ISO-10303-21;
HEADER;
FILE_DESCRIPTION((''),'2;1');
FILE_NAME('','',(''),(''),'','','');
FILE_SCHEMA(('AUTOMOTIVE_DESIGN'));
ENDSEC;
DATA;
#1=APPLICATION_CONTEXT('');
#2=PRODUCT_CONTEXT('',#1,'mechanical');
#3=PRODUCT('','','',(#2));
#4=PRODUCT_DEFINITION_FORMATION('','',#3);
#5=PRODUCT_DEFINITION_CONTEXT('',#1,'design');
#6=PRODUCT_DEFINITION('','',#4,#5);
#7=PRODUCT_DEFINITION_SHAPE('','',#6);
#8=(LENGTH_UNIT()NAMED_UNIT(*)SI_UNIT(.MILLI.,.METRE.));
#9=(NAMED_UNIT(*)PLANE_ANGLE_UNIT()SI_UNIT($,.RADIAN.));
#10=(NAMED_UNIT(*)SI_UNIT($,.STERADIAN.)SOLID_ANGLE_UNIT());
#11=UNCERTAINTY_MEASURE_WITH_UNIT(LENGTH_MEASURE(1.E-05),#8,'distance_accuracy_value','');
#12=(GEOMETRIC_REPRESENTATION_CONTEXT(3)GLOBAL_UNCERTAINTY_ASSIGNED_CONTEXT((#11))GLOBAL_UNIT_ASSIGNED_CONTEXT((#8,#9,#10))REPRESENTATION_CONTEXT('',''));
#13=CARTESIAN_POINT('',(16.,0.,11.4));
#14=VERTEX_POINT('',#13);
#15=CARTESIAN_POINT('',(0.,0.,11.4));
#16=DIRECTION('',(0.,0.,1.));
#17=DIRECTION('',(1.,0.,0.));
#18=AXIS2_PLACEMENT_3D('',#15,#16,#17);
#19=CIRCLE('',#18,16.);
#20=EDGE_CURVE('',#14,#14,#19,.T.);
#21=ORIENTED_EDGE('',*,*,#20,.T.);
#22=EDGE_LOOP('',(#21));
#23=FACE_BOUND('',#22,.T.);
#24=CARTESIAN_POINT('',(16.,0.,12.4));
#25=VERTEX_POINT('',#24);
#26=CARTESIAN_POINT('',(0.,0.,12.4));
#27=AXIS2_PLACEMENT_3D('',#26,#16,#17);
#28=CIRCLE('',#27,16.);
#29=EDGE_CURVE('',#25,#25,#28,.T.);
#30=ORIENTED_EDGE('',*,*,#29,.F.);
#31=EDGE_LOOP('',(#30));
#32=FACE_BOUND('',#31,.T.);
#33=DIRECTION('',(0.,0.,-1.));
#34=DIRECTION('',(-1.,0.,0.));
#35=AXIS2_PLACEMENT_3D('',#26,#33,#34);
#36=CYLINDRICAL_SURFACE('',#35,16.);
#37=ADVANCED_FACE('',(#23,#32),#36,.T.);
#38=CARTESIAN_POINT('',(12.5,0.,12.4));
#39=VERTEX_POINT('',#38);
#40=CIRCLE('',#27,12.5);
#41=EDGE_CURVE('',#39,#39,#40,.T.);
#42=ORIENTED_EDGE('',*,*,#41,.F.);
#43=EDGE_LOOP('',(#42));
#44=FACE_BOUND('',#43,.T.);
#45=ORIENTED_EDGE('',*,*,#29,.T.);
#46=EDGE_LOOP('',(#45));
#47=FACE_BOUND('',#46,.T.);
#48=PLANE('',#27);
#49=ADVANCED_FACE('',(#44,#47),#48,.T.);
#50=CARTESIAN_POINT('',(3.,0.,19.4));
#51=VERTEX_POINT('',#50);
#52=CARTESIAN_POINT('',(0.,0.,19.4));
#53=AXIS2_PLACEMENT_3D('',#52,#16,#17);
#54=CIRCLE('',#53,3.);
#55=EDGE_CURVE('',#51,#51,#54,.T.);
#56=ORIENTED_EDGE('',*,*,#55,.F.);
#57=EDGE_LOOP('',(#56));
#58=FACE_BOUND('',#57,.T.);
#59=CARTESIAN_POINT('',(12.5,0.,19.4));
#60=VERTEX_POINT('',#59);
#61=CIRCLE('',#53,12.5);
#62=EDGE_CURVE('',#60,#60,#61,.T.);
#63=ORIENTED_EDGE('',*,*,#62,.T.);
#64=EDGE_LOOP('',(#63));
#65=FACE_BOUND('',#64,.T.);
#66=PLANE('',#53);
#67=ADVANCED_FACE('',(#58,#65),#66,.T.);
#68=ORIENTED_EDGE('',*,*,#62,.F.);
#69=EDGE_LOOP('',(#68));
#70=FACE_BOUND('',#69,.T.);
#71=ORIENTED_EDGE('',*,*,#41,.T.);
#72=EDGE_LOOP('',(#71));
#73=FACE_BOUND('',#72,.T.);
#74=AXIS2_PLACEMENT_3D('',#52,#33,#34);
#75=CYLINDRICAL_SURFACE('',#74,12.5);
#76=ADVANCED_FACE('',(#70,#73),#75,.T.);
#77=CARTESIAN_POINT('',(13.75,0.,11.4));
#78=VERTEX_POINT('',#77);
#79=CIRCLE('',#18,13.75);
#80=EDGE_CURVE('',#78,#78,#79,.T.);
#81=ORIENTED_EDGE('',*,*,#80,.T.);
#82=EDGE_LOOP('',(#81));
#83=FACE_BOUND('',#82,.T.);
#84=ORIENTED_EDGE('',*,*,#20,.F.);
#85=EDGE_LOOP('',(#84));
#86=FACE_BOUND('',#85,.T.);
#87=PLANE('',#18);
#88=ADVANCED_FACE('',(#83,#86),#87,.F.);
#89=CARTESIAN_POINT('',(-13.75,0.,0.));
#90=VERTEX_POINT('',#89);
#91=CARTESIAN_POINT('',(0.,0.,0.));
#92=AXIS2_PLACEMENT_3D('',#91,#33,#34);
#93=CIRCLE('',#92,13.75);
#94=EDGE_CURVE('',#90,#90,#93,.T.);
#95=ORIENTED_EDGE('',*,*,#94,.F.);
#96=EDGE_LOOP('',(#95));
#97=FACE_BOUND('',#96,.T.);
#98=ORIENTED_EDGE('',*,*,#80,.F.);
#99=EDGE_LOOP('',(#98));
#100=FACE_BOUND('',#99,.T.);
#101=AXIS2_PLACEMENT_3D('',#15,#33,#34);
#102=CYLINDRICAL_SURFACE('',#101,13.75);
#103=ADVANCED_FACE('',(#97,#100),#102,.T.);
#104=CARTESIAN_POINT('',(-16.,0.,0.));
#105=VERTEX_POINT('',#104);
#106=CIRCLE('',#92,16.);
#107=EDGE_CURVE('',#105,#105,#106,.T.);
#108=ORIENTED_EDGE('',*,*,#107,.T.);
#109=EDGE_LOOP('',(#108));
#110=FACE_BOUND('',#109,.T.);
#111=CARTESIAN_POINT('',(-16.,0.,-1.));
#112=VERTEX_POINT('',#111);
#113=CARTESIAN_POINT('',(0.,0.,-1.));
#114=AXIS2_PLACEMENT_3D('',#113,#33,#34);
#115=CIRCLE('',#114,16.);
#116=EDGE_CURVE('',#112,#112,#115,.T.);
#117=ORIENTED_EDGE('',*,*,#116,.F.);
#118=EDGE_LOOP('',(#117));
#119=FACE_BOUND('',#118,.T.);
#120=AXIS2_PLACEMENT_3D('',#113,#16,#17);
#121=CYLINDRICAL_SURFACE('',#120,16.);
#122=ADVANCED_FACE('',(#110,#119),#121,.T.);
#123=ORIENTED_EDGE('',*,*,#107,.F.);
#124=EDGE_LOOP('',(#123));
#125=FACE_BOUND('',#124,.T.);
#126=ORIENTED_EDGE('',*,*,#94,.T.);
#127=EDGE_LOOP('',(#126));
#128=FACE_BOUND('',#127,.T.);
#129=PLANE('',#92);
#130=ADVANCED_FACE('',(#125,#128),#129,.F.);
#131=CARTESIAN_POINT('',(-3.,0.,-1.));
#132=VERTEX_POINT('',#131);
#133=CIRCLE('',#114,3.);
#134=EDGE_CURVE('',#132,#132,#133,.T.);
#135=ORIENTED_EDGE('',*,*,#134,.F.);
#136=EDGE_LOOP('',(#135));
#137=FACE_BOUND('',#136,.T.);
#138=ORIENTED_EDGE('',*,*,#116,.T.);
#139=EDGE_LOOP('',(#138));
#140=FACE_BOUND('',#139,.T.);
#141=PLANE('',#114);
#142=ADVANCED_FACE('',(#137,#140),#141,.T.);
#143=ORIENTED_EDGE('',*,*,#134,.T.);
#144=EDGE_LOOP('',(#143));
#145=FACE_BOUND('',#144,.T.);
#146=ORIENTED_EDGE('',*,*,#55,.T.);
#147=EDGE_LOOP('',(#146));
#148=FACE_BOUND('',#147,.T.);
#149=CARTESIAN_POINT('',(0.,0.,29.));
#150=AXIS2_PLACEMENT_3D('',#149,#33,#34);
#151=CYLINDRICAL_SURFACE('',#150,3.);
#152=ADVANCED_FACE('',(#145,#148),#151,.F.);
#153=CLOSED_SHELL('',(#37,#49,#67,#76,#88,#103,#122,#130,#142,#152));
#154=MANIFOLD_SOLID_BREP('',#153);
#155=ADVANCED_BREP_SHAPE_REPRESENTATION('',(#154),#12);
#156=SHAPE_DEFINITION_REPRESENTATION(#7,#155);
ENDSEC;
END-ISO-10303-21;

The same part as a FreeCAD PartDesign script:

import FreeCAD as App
import Part
import Sketcher
from FreeCAD import Vector
Q = App.Units.Quantity

doc = App.newDocument("Part")
params = doc.addObject("Spreadsheet::Sheet", "Params")
for row, (alias, value) in enumerate([
    ("sketch1_diameter", "27.5 mm"),
    ("pad1_length", "11.4 mm"),
    ("sketch2_diameter", "32 mm"),
    ("pad2_length", "1 mm"),
    ("sketch3_diameter", "32 mm"),
    ("pad3_length", "1 mm"),
    ("sketch4_diameter", "25 mm"),
    ("pad4_length", "7 mm"),
    ("sketch5_diameter", "6 mm"),
    ("pocket1_length", "30 mm"),
], start=1):
    params.set(f"A{row}", alias)
    params.set(f"B{row}", "=" + value)
    params.setAlias(f"B{row}", alias)

body = doc.addObject("PartDesign::Body", "Body")

sketch1 = body.newObject("Sketcher::SketchObject", "Sketch")
sketch1.AttachmentSupport = (doc.getObject("XY_Plane"), [""])
sketch1.MapMode = "FlatFace"
sketch1.addGeometry(Part.Circle(Vector(0, 0, 0), Vector(0, 0, 1), 13.75), False)
sketch1.addConstraint([
    Sketcher.Constraint("Coincident", 0, 3, -1, 1),
    Sketcher.Constraint("Diameter", 0, Q("27.5 mm")),
])
sketch1.setExpression("Constraints[1]", "Params.sketch1_diameter")
pad1 = body.newObject("PartDesign::Pad", "Pad")
pad1.Profile = sketch1
pad1.setExpression("Length", "Params.pad1_length")

sketch2 = body.newObject("Sketcher::SketchObject", "Sketch001")
sketch2.AttachmentSupport = (doc.getObject("XY_Plane"), [""])
sketch2.MapMode = "FlatFace"
sketch2.AttachmentOffset = App.Placement(Vector(0, 0, 11.4), App.Rotation())
sketch2.addGeometry(Part.Circle(Vector(0, 0, 0), Vector(0, 0, 1), 16), False)
sketch2.addConstraint([
    Sketcher.Constraint("Coincident", 0, 3, -1, 1),
    Sketcher.Constraint("Diameter", 0, Q("32 mm")),
])
sketch2.setExpression("Constraints[1]", "Params.sketch2_diameter")
pad2 = body.newObject("PartDesign::Pad", "Pad001")
pad2.Profile = sketch2
pad2.setExpression("Length", "Params.pad2_length")

sketch3 = body.newObject("Sketcher::SketchObject", "Sketch002")
sketch3.AttachmentSupport = (doc.getObject("XY_Plane"), [""])
sketch3.MapMode = "FlatFace"
sketch3.AttachmentOffset = App.Placement(Vector(0, 0, -1), App.Rotation())
sketch3.addGeometry(Part.Circle(Vector(0, 0, 0), Vector(0, 0, 1), 16), False)
sketch3.addConstraint([
    Sketcher.Constraint("Coincident", 0, 3, -1, 1),
    Sketcher.Constraint("Diameter", 0, Q("32 mm")),
])
sketch3.setExpression("Constraints[1]", "Params.sketch3_diameter")
pad3 = body.newObject("PartDesign::Pad", "Pad002")
pad3.Profile = sketch3
pad3.setExpression("Length", "Params.pad3_length")

sketch4 = body.newObject("Sketcher::SketchObject", "Sketch003")
sketch4.AttachmentSupport = (doc.getObject("XY_Plane"), [""])
sketch4.MapMode = "FlatFace"
sketch4.AttachmentOffset = App.Placement(Vector(0, 0, 12.4), App.Rotation())
sketch4.addGeometry(Part.Circle(Vector(0, 0, 0), Vector(0, 0, 1), 12.5), False)
sketch4.addConstraint([
    Sketcher.Constraint("Coincident", 0, 3, -1, 1),
    Sketcher.Constraint("Diameter", 0, Q("25 mm")),
])
sketch4.setExpression("Constraints[1]", "Params.sketch4_diameter")
pad4 = body.newObject("PartDesign::Pad", "Pad003")
pad4.Profile = sketch4
pad4.setExpression("Length", "Params.pad4_length")

sketch5 = body.newObject("Sketcher::SketchObject", "Sketch004")
sketch5.AttachmentSupport = (doc.getObject("XY_Plane"), [""])
sketch5.MapMode = "FlatFace"
sketch5.AttachmentOffset = App.Placement(Vector(0, 0, -1), App.Rotation())
sketch5.addGeometry(Part.Circle(Vector(0, 0, 0), Vector(0, 0, 1), 3), False)
sketch5.addConstraint([
    Sketcher.Constraint("Coincident", 0, 3, -1, 1),
    Sketcher.Constraint("Diameter", 0, Q("6 mm")),
])
sketch5.setExpression("Constraints[1]", "Params.sketch5_diameter")
pocket1 = body.newObject("PartDesign::Pocket", "Pocket")
pocket1.Profile = sketch5
pocket1.setExpression("Length", "Params.pocket1_length")
pocket1.Reversed = True

doc.recompute()
